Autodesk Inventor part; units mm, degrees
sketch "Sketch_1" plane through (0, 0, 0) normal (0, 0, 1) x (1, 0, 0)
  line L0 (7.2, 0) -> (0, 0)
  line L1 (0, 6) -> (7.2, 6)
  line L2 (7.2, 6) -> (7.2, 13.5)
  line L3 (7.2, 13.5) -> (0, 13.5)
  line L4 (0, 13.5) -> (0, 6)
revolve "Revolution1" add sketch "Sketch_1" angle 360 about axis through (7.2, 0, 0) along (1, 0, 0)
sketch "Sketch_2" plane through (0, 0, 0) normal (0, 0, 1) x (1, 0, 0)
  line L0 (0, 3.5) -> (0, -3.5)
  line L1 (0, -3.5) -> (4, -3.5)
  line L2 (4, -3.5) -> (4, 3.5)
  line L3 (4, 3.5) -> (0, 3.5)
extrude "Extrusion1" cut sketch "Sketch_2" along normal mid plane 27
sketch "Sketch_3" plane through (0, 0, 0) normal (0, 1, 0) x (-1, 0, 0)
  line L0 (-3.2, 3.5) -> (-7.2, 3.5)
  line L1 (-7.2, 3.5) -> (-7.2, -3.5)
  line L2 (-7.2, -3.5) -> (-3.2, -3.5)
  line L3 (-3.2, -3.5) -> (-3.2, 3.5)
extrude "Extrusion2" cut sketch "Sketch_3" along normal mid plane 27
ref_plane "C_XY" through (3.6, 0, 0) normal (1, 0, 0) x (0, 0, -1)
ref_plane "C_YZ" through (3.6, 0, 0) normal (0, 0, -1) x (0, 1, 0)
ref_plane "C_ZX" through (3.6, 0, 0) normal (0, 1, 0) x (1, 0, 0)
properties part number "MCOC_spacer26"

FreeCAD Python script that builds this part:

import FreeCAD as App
import Part
import Sketcher

doc = App.newDocument("Part")
body = doc.addObject("PartDesign::Body", "Body")

sketch1 = body.newObject("Sketcher::SketchObject", "Sketch")
sketch1.AttachmentSupport = (doc.getObject("XY_Plane"), [""])
sketch1.MapMode = "FlatFace"
sketch1.addGeometry(Part.LineSegment(App.Vector(0, 14, 0), App.Vector(0, 6, 0)), False)
sketch1.addGeometry(Part.LineSegment(App.Vector(0, 6, 0), App.Vector(7, 6, 0)), False)
sketch1.addGeometry(Part.LineSegment(App.Vector(7, 6, 0), App.Vector(7, 14, 0)), False)
sketch1.addGeometry(Part.LineSegment(App.Vector(7, 14, 0), App.Vector(0, 14, 0)), False)
sketch1.addConstraint(Sketcher.Constraint("Coincident", 0, 2, 1, 1))
sketch1.addConstraint(Sketcher.Constraint("Coincident", 1, 2, 2, 1))
sketch1.addConstraint(Sketcher.Constraint("Coincident", 2, 2, 3, 1))
sketch1.addConstraint(Sketcher.Constraint("Coincident", 3, 2, 0, 1))
sketch1.addConstraint(Sketcher.Constraint("Vertical", 0))
sketch1.addConstraint(Sketcher.Constraint("Horizontal", 1))
sketch1.addConstraint(Sketcher.Constraint("Vertical", 2))
sketch1.addConstraint(Sketcher.Constraint("Horizontal", 3))
sketch1.addConstraint(Sketcher.Constraint("PointOnObject", 0, 2, -2))
sketch1.addConstraint(Sketcher.Constraint("DistanceX", 1, 1, 1, 2, 7.2))
sketch1.addConstraint(Sketcher.Constraint("DistanceY", 0, 2, 0, 1, 7.5))
sketch1.addConstraint(Sketcher.Constraint("DistanceY", -1, 1, 0, 2, 6.0))
revolution = body.newObject("PartDesign::Revolution", "Revolution")
revolution.Profile = sketch1
revolution.ReferenceAxis = (sketch1, ["H_Axis"])
revolution.Angle = 360

sketch2 = body.newObject("Sketcher::SketchObject", "Sketch001")
sketch2.AttachmentSupport = (doc.getObject("XY_Plane"), [""])
sketch2.MapMode = "FlatFace"
sketch2.addGeometry(Part.LineSegment(App.Vector(4, 3.5, 0), App.Vector(0, 3.5, 0)), False)
sketch2.addGeometry(Part.LineSegment(App.Vector(0, 3.5, 0), App.Vector(0, -3.5, 0)), False)
sketch2.addGeometry(Part.LineSegment(App.Vector(0, -3.5, 0), App.Vector(4, -3.5, 0)), False)
sketch2.addGeometry(Part.LineSegment(App.Vector(4, -3.5, 0), App.Vector(4, 3.5, 0)), False)
sketch2.addConstraint(Sketcher.Constraint("Coincident", 0, 2, 1, 1))
sketch2.addConstraint(Sketcher.Constraint("Coincident", 1, 2, 2, 1))
sketch2.addConstraint(Sketcher.Constraint("Coincident", 2, 2, 3, 1))
sketch2.addConstraint(Sketcher.Constraint("Coincident", 3, 2, 0, 1))
sketch2.addConstraint(Sketcher.Constraint("Horizontal", 0))
sketch2.addConstraint(Sketcher.Constraint("Vertical", 1))
sketch2.addConstraint(Sketcher.Constraint("Horizontal", 2))
sketch2.addConstraint(Sketcher.Constraint("Vertical", 3))
sketch2.addConstraint(Sketcher.Constraint("Symmetric", 0, 2, 1, 2, -1, 1))
sketch2.addConstraint(Sketcher.Constraint("DistanceX", 0, 2, 0, 1, 4.0))
sketch2.addConstraint(Sketcher.Constraint("DistanceY", 1, 2, 1, 1, 7.0))
pocket1 = body.newObject("PartDesign::Pocket", "Pocket")
pocket1.Profile = sketch2
pocket1.Length = 27
pocket1.Midplane = True

sketch3 = body.newObject("Sketcher::SketchObject", "Sketch002")
sketch3.AttachmentSupport = (doc.getObject("XZ_Plane"), [""])
sketch3.MapMode = "FlatFace"
sketch3.addGeometry(Part.LineSegment(App.Vector(3.2, -3.5, 0), App.Vector(3.2, 3.5, 0)), False)
sketch3.addGeometry(Part.LineSegment(App.Vector(3.2, 3.5, 0), App.Vector(7.2, 3.5, 0)), False)
sketch3.addGeometry(Part.LineSegment(App.Vector(7.2, 3.5, 0), App.Vector(7.2, -3.5, 0)), False)
sketch3.addGeometry(Part.LineSegment(App.Vector(7.2, -3.5, 0), App.Vector(3.2, -3.5, 0)), False)
sketch3.addConstraint(Sketcher.Constraint("Coincident", 0, 2, 1, 1))
sketch3.addConstraint(Sketcher.Constraint("Coincident", 1, 2, 2, 1))
sketch3.addConstraint(Sketcher.Constraint("Coincident", 2, 2, 3, 1))
sketch3.addConstraint(Sketcher.Constraint("Coincident", 3, 2, 0, 1))
sketch3.addConstraint(Sketcher.Constraint("Vertical", 0))
sketch3.addConstraint(Sketcher.Constraint("Horizontal", 1))
sketch3.addConstraint(Sketcher.Constraint("Vertical", 2))
sketch3.addConstraint(Sketcher.Constraint("Horizontal", 3))
sketch3.addConstraint(Sketcher.Constraint("DistanceX", 1, 1, 1, 2, 4.0))
sketch3.addConstraint(Sketcher.Constraint("DistanceY", 0, 1, 0, 2, 7.0))
sketch3.addConstraint(Sketcher.Constraint("DistanceX", -1, 1, 0, 2, 3.2))
sketch3.addConstraint(Sketcher.Constraint("DistanceY", -1, 1, 0, 2, 3.5))
pocket2 = body.newObject("PartDesign::Pocket", "Pocket001")
pocket2.Profile = sketch3
pocket2.Length = 27
pocket2.Midplane = True

doc.recompute()
